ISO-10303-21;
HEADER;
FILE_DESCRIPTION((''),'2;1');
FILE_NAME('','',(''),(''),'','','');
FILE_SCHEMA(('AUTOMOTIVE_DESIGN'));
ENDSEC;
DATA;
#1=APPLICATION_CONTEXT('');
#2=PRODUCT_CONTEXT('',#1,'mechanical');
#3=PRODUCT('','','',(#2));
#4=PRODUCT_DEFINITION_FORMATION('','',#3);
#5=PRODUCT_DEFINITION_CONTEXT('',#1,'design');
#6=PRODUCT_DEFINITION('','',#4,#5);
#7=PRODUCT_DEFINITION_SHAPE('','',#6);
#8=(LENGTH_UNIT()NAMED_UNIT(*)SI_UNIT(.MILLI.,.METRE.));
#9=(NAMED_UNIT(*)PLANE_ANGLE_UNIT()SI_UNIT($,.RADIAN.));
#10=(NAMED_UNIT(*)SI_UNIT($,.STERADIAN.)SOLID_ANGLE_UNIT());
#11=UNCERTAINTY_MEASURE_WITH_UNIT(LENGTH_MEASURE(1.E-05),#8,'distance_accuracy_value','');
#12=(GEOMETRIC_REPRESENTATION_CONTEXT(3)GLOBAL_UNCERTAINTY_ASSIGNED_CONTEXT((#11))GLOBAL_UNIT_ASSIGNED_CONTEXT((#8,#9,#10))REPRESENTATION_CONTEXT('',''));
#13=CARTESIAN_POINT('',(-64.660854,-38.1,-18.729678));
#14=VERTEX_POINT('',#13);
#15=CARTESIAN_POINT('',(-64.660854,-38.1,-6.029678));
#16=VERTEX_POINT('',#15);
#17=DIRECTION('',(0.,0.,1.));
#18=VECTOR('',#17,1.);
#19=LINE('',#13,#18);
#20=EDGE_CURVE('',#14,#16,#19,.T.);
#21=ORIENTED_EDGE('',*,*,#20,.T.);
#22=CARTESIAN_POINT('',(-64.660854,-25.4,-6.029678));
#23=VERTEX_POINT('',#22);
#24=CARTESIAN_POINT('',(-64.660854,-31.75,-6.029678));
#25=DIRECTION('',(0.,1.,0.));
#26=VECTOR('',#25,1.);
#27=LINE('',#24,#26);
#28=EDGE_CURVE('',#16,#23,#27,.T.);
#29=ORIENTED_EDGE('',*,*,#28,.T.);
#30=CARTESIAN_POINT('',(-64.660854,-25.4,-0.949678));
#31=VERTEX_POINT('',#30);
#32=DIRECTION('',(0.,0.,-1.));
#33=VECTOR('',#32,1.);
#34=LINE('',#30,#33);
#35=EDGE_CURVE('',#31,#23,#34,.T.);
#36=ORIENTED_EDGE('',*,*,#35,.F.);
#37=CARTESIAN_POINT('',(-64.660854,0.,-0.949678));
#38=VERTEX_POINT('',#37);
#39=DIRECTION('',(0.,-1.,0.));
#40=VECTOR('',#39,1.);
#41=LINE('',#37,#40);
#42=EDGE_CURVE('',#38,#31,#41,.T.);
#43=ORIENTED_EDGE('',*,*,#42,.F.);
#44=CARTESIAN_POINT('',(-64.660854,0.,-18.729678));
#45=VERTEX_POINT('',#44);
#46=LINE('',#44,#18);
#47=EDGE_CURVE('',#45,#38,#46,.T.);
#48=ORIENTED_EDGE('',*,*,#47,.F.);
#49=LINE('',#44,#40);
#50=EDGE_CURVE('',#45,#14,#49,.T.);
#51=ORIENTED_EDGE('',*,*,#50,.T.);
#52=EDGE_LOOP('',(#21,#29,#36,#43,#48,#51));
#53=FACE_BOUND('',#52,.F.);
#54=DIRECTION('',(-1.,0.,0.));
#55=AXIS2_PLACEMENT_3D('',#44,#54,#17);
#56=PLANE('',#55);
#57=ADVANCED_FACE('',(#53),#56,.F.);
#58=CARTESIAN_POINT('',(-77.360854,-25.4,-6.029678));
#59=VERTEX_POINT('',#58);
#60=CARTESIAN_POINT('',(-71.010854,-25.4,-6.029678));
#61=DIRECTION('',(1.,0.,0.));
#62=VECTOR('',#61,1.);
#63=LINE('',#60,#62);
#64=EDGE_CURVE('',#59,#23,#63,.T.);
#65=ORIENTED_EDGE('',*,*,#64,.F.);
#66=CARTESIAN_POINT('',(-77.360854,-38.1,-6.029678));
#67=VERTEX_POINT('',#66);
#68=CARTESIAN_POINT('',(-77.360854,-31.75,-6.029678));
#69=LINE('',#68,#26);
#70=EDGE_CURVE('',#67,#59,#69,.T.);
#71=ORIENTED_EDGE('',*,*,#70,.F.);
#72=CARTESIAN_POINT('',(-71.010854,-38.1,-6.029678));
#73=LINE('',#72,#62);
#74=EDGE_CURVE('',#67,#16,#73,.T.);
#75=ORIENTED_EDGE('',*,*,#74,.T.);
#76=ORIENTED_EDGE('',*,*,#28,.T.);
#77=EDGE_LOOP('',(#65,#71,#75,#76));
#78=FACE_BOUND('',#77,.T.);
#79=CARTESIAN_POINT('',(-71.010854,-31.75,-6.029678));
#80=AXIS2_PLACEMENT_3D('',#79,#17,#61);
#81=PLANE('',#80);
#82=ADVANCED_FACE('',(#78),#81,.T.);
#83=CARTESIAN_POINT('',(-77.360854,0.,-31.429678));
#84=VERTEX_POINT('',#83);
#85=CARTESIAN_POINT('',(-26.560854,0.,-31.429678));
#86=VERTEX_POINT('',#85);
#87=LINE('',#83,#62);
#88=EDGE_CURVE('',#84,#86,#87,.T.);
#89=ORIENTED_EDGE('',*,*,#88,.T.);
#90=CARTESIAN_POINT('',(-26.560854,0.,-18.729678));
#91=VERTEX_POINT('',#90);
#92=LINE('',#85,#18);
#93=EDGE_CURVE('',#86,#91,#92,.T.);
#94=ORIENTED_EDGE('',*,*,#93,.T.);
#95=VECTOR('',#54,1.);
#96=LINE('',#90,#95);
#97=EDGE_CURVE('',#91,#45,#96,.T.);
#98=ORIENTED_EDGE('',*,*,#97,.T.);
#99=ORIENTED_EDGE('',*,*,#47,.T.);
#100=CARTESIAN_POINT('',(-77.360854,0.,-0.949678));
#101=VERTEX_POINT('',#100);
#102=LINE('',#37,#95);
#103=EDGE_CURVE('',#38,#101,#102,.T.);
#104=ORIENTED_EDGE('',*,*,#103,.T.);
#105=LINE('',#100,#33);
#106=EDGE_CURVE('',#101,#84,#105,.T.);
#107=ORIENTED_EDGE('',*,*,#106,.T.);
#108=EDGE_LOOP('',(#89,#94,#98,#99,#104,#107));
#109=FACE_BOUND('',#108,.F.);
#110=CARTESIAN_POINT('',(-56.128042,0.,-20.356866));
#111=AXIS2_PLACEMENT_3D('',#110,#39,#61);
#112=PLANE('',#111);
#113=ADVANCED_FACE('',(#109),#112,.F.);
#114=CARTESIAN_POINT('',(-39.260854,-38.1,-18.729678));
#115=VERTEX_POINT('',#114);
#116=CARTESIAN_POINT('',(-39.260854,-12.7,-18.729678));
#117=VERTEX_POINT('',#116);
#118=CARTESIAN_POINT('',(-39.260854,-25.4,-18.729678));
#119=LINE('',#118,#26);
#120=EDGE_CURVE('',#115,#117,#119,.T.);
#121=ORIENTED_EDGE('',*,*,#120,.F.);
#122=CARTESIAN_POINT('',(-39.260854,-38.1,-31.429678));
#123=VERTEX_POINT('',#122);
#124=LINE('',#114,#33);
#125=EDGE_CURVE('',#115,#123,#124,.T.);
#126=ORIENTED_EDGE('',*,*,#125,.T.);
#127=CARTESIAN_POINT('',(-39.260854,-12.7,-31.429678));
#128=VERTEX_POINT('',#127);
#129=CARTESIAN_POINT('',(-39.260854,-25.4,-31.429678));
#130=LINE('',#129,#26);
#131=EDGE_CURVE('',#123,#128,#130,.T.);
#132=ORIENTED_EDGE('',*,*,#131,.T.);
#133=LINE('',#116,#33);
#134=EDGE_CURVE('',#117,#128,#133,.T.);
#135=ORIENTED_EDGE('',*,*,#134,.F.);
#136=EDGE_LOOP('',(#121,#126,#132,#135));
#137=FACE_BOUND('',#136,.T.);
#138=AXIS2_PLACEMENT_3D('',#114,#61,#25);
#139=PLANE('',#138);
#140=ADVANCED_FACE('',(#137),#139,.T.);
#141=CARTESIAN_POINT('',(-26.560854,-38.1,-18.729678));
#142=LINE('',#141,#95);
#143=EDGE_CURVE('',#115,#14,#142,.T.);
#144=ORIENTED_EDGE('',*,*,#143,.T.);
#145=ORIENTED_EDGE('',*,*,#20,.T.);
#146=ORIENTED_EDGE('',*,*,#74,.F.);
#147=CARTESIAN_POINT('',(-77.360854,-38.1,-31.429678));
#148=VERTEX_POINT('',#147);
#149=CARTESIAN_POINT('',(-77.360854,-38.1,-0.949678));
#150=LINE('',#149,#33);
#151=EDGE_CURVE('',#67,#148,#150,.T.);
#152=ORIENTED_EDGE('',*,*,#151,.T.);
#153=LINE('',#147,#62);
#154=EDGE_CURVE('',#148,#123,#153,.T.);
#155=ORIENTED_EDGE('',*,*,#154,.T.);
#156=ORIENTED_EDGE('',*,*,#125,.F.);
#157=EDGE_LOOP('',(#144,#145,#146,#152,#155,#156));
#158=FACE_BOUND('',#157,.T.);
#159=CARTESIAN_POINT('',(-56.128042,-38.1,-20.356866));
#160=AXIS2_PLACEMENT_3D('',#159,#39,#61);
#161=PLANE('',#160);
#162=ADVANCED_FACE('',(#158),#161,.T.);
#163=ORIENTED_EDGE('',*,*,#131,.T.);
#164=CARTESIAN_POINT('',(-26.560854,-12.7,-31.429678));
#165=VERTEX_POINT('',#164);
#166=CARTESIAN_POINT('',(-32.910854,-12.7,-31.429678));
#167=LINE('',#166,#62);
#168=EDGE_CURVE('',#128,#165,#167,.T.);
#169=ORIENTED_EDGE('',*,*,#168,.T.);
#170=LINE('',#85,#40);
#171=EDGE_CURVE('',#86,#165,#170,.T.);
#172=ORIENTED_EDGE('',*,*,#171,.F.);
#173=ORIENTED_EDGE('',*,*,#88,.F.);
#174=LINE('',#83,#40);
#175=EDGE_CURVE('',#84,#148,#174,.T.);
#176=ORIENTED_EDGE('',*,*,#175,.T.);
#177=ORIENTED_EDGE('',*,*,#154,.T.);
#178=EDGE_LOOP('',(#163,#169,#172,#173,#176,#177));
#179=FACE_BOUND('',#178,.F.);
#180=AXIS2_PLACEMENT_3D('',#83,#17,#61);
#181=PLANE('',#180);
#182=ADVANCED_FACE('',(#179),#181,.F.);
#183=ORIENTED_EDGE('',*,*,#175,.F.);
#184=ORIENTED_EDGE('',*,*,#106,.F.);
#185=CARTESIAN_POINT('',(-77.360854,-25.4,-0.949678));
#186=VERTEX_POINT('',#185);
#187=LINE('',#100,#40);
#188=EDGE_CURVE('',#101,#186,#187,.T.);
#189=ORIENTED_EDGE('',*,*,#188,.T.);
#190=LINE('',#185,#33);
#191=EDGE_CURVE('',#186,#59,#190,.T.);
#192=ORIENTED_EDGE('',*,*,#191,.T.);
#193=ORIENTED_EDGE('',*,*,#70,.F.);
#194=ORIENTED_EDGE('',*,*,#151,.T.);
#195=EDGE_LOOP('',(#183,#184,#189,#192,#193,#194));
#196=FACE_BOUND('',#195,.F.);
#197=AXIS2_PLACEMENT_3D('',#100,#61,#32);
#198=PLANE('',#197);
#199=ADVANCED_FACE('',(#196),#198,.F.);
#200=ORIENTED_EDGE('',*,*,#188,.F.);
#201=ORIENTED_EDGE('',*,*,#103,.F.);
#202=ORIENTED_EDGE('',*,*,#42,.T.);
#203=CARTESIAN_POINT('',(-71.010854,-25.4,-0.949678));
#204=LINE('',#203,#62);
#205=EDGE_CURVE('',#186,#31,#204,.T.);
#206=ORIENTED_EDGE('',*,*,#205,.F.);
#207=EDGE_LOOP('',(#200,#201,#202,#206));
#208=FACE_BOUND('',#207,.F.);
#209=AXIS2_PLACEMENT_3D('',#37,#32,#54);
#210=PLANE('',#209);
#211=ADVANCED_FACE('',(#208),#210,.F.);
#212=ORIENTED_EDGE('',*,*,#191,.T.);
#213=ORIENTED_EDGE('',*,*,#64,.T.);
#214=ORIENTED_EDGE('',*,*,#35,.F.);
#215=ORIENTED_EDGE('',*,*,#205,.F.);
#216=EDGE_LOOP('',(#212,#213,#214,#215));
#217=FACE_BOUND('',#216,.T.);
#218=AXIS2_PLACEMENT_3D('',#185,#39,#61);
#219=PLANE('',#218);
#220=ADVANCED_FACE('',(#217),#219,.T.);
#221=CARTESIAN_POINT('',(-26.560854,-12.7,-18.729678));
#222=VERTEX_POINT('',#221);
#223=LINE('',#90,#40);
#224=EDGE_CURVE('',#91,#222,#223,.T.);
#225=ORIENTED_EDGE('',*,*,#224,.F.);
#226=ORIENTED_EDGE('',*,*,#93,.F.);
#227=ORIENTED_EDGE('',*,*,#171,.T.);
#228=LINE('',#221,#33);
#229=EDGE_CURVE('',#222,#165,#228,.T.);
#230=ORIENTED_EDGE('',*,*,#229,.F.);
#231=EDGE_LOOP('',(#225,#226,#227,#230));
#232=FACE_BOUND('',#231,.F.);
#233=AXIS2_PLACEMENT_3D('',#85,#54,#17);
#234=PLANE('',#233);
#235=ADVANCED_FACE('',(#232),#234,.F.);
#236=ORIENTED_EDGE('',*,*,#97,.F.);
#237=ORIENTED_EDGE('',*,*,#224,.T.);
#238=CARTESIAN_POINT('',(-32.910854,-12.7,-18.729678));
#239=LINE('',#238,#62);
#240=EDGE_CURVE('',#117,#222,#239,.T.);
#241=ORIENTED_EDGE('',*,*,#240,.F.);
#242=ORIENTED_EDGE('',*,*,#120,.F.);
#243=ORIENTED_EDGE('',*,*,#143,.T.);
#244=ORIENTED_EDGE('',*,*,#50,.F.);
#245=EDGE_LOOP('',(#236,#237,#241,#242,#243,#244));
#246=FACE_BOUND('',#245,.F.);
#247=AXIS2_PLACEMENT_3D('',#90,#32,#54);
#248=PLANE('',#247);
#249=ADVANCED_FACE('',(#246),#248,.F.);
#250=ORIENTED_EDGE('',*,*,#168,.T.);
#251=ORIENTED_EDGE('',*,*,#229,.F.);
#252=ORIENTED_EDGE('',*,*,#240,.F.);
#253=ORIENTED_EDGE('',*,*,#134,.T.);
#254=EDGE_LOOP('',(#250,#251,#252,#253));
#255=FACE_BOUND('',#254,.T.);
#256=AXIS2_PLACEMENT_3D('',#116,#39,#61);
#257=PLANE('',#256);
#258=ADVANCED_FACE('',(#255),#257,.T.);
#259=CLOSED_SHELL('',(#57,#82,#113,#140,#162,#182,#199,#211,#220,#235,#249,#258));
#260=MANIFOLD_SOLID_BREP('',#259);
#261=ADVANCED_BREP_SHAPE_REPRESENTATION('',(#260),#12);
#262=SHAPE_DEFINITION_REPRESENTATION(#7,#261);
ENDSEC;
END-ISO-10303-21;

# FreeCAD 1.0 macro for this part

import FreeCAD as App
import Part
import Sketcher
Q = App.Units.Quantity

doc = App.newDocument("Part")
body = doc.addObject("PartDesign::Body", "Body")

sketch1 = doc.addObject("Sketcher::SketchObject", "Sketch")
body.addObject(sketch1)
sketch1.AttachmentSupport = (doc.XZ_Plane, [""])
sketch1.MapMode = "FlatFace"
sketch1.addGeometry(Part.LineSegment(App.Vector(-77, -1, 0), App.Vector(-77, -31, 0)), False)
sketch1.addGeometry(Part.LineSegment(App.Vector(-77, -31, 0), App.Vector(-27, -31, 0)), False)
sketch1.addGeometry(Part.LineSegment(App.Vector(-27, -31, 0), App.Vector(-27, -19, 0)), False)
sketch1.addGeometry(Part.LineSegment(App.Vector(-27, -19, 0), App.Vector(-65, -19, 0)), False)
sketch1.addGeometry(Part.LineSegment(App.Vector(-65, -19, 0), App.Vector(-65, -1, 0)), False)
sketch1.addGeometry(Part.LineSegment(App.Vector(-65, -1, 0), App.Vector(-77, -1, 0)), False)
sketch1.addConstraint(Sketcher.Constraint("Coincident", 0, 2, 1, 1))
sketch1.addConstraint(Sketcher.Constraint("Coincident", 1, 2, 2, 1))
sketch1.addConstraint(Sketcher.Constraint("Coincident", 2, 2, 3, 1))
sketch1.addConstraint(Sketcher.Constraint("Coincident", 3, 2, 4, 1))
sketch1.addConstraint(Sketcher.Constraint("Coincident", 4, 2, 5, 1))
sketch1.addConstraint(Sketcher.Constraint("Coincident", 5, 2, 0, 1))
sketch1.addConstraint(Sketcher.Constraint("Vertical", 0))
sketch1.addConstraint(Sketcher.Constraint("Horizontal", 1))
sketch1.addConstraint(Sketcher.Constraint("Vertical", 2))
sketch1.addConstraint(Sketcher.Constraint("Horizontal", 3))
sketch1.addConstraint(Sketcher.Constraint("Vertical", 4))
sketch1.addConstraint(Sketcher.Constraint("Horizontal", 5))
sketch1.addConstraint(Sketcher.Constraint("Equal", 5, 2))
sketch1.addConstraint(Sketcher.Constraint("DistanceX", 1, 1, 1, 2, Q("2 in")))
sketch1.addConstraint(Sketcher.Constraint("DistanceX", 3, 2, 3, 1, Q("1.5 in")))
sketch1.addConstraint(Sketcher.Constraint("DistanceY", 0, 2, 0, 1, Q("1.2 in")))
sketch1.addConstraint(Sketcher.Constraint("DistanceY", 2, 2, -1, 1, Q("18.729678 mm")))
sketch1.addConstraint(Sketcher.Constraint("DistanceX", 0, 2, -1, 1, Q("77.360854 mm")))
pad1 = doc.addObject("PartDesign::Pad", "Pad")
body.addObject(pad1)
pad1.Profile = sketch1
pad1.Length = Q("1.5 in")

sketch2 = doc.addObject("Sketcher::SketchObject", "Sketch001")
body.addObject(sketch2)
sketch2.AttachmentSupport = (doc.XY_Plane, [""])
sketch2.MapMode = "FlatFace"
sketch2.AttachmentOffset = App.Placement(App.Vector(0, 0, -0.949678), App.Rotation())
sketch2.addGeometry(Part.LineSegment(App.Vector(-77, -25, 0), App.Vector(-77, -38, 0)), False)
sketch2.addGeometry(Part.LineSegment(App.Vector(-77, -38, 0), App.Vector(-65, -38, 0)), False)
sketch2.addGeometry(Part.LineSegment(App.Vector(-65, -38, 0), App.Vector(-65, -25, 0)), False)
sketch2.addGeometry(Part.LineSegment(App.Vector(-65, -25, 0), App.Vector(-77, -25, 0)), False)
sketch2.addConstraint(Sketcher.Constraint("Coincident", 0, 2, 1, 1))
sketch2.addConstraint(Sketcher.Constraint("Coincident", 1, 2, 2, 1))
sketch2.addConstraint(Sketcher.Constraint("Coincident", 2, 2, 3, 1))
sketch2.addConstraint(Sketcher.Constraint("Coincident", 3, 2, 0, 1))
sketch2.addConstraint(Sketcher.Constraint("Vertical", 0))
sketch2.addConstraint(Sketcher.Constraint("Horizontal", 1))
sketch2.addConstraint(Sketcher.Constraint("Vertical", 2))
sketch2.addConstraint(Sketcher.Constraint("Horizontal", 3))
sketch2.addConstraint(Sketcher.Constraint("Equal", 3, 0))
sketch2.addConstraint(Sketcher.Constraint("DistanceX", 1, 1, 1, 2, Q("0.5 in")))
sketch2.addConstraint(Sketcher.Constraint("DistanceY", 2, 2, -1, 1, Q("1 in")))
sketch2.addConstraint(Sketcher.Constraint("DistanceX", 0, 2, -1, 1, Q("77.360854 mm")))
pocket1 = doc.addObject("PartDesign::Pocket", "Pocket")
body.addObject(pocket1)
pocket1.Profile = sketch2
pocket1.Length = Q("0.2 in")

sketch3 = doc.addObject("Sketcher::SketchObject", "Sketch002")
body.addObject(sketch3)
sketch3.AttachmentSupport = (doc.XY_Plane, [""])
sketch3.MapMode = "FlatFace"
sketch3.AttachmentOffset = App.Placement(App.Vector(0, 0, -18.729678), App.Rotation())
sketch3.addGeometry(Part.LineSegment(App.Vector(-39, -13, 0), App.Vector(-39, -38, 0)), False)
sketch3.addGeometry(Part.LineSegment(App.Vector(-39, -38, 0), App.Vector(-27, -38, 0)), False)
sketch3.addGeometry(Part.LineSegment(App.Vector(-27, -38, 0), App.Vector(-27, -13, 0)), False)
sketch3.addGeometry(Part.LineSegment(App.Vector(-27, -13, 0), App.Vector(-39, -13, 0)), False)
sketch3.addConstraint(Sketcher.Constraint("Coincident", 0, 2, 1, 1))
sketch3.addConstraint(Sketcher.Constraint("Coincident", 1, 2, 2, 1))
sketch3.addConstraint(Sketcher.Constraint("Coincident", 2, 2, 3, 1))
sketch3.addConstraint(Sketcher.Constraint("Coincident", 3, 2, 0, 1))
sketch3.addConstraint(Sketcher.Constraint("Vertical", 0))
sketch3.addConstraint(Sketcher.Constraint("Horizontal", 1))
sketch3.addConstraint(Sketcher.Constraint("Vertical", 2))
sketch3.addConstraint(Sketcher.Constraint("Horizontal", 3))
sketch3.addConstraint(Sketcher.Constraint("DistanceY", 0, 2, 0, 1, Q("1 in")))
sketch3.addConstraint(Sketcher.Constraint("DistanceX", 1, 1, 1, 2, Q("0.5 in")))
sketch3.addConstraint(Sketcher.Constraint("DistanceY", 0, 2, -1, 1, Q("1.5 in")))
sketch3.addConstraint(Sketcher.Constraint("DistanceX", 0, 2, -1, 1, Q("39.260854 mm")))
pocket2 = doc.addObject("PartDesign::Pocket", "Pocket001")
body.addObject(pocket2)
pocket2.Profile = sketch3
pocket2.Length = Q("0.5 in")

doc.recompute()
